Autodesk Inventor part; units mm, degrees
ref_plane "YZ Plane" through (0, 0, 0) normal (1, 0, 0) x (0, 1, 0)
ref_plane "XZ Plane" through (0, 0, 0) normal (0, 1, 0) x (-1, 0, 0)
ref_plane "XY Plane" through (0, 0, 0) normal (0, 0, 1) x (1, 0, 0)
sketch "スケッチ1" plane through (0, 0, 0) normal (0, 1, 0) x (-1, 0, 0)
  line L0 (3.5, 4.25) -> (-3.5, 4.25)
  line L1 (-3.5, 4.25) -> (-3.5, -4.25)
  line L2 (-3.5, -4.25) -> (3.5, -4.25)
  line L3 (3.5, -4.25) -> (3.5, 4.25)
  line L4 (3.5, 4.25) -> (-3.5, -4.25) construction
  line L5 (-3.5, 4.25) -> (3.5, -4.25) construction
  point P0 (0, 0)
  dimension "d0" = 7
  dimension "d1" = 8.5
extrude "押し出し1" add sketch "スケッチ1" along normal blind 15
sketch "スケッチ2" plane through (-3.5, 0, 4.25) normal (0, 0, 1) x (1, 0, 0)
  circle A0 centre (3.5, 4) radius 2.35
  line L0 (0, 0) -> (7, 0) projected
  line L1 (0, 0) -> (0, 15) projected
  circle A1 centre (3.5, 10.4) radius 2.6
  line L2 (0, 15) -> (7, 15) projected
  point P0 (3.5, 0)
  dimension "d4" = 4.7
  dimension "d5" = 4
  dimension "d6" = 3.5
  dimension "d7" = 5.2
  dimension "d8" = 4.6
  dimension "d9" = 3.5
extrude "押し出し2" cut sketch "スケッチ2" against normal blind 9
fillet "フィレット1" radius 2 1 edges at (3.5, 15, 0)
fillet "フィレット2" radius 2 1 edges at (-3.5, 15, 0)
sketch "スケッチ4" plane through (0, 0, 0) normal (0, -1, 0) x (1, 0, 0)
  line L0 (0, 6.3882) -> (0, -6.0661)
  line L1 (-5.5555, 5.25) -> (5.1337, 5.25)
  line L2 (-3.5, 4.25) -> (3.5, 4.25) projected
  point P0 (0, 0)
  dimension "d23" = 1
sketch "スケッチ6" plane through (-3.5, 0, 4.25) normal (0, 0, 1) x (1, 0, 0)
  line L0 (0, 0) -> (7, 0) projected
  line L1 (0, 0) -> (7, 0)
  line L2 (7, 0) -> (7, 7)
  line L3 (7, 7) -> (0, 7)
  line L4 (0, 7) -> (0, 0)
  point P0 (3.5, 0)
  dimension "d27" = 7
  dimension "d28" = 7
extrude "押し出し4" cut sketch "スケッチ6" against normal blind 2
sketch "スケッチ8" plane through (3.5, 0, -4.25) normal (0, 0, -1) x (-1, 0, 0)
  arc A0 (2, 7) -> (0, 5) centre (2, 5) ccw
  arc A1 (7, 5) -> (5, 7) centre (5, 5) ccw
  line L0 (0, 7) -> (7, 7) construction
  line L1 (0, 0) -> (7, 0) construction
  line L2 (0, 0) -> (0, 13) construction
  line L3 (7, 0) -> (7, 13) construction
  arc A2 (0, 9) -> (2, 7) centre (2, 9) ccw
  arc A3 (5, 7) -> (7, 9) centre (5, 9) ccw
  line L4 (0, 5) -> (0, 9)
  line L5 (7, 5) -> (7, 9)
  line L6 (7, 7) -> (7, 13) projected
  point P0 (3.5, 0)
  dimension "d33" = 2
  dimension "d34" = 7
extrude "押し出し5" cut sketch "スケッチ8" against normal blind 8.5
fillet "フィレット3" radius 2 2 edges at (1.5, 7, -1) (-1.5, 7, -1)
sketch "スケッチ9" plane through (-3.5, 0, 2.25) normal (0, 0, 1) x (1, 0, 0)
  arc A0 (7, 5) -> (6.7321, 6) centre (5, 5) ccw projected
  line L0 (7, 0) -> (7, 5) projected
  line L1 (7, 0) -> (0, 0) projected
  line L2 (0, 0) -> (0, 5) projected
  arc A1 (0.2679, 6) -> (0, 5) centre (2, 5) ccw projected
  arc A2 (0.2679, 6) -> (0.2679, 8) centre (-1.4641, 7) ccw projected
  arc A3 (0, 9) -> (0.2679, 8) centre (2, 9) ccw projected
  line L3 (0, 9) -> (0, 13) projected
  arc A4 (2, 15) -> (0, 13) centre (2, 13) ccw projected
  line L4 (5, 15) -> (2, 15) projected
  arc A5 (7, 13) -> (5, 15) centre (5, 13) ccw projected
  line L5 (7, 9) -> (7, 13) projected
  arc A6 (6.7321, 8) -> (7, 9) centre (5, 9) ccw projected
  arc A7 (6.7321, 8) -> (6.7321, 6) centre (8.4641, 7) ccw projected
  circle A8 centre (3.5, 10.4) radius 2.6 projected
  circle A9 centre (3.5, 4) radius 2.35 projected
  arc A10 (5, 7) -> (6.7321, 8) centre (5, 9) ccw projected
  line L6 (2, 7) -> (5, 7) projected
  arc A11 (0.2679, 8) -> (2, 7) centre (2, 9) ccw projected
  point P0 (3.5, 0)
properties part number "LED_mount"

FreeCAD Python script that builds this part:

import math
import FreeCAD as App
import Part
import Sketcher

V = App.Vector


def edges_at(feature, points):
    """Names of the edges that pass closest to the given points."""
    edges = feature.Shape.Edges
    near = lambda p: min(range(len(edges)), key=lambda i: edges[i].distToShape(Part.Vertex(*p))[0])
    return sorted({f"Edge{near(p) + 1}" for p in points})


def add_polygon(sketch, points):
    """Adds a closed chain of lines whose ends are joined by coincident constraints."""
    first, n = sketch.GeometryCount, len(points)
    for a, b in zip(points, points[1:] + points[:1]):
        sketch.addGeometry(Part.LineSegment(App.Vector(*a, 0), App.Vector(*b, 0)), False)
    for i in range(n):
        sketch.addConstraint(Sketcher.Constraint("Coincident", first + i, 2, first + (i + 1) % n, 1))

doc = App.newDocument("Part")
body = doc.addObject("PartDesign::Body", "Body")

# Sketch on XZ plane
sketch1 = doc.addObject("Sketcher::SketchObject", "Sketch")
body.addObject(sketch1)
sketch1.AttachmentSupport = (doc.XZ_Plane, [""])
sketch1.MapMode = "FlatFace"
add_polygon(sketch1, [(-3.5, -4.25), (-3.5, 4.25), (3.5, 4.25), (3.5, -4.25)])  # lines 0-3
sketch1.addConstraint([
    Sketcher.Constraint("Vertical", 0),
    Sketcher.Constraint("Horizontal", 1),
    Sketcher.Constraint("Vertical", 2),
    Sketcher.Constraint("Horizontal", 3),
    Sketcher.Constraint("Symmetric", 0, 2, 2, 2, -1, 1),
    Sketcher.Constraint("DistanceX", 1, 1, 1, 2, 7.0),
    Sketcher.Constraint("DistanceY", 0, 1, 0, 2, 8.5),
])
pad1 = doc.addObject("PartDesign::Pad", "Pad")
body.addObject(pad1)
pad1.Profile = sketch1
pad1.Length = 15
pad1.Reversed = True

# Sketch on XY plane
sketch2 = doc.addObject("Sketcher::SketchObject", "Sketch001")
body.addObject(sketch2)
sketch2.AttachmentSupport = (doc.XY_Plane, [""])
sketch2.MapMode = "FlatFace"
sketch2.AttachmentOffset = App.Placement(V(0, 0, 4.25), App.Rotation())
sketch2.addGeometry([
    Part.Circle(V(0, 4, 0), V(0, 0, 1), 2.35),
    Part.Circle(V(0, 10.4, 0), V(0, 0, 1), 2.6),
], False)
sketch2.addConstraint([
    Sketcher.Constraint("PointOnObject", 0, 3, -2),
    Sketcher.Constraint("PointOnObject", 1, 3, -2),
    Sketcher.Constraint("Diameter", 0, 4.7),
    Sketcher.Constraint("Diameter", 1, 5.2),
    Sketcher.Constraint("DistanceY", -1, 1, 0, 3, 4.0),
    Sketcher.Constraint("DistanceY", -1, 1, 1, 3, 10.4),
])
pocket1 = doc.addObject("PartDesign::Pocket", "Pocket")
body.addObject(pocket1)
pocket1.Profile = sketch2
pocket1.Length = 9
doc.recompute()

fillet = doc.addObject("PartDesign::Fillet", "Fillet")
body.addObject(fillet)
fillet.Base = (pocket1, edges_at(pocket1, [(3.5, 15, 0)]))
fillet.Radius = 2
doc.recompute()

fillet2 = doc.addObject("PartDesign::Fillet", "Fillet001")
body.addObject(fillet2)
fillet2.Base = (fillet, edges_at(fillet, [(-3.5, 15, 0)]))
fillet2.Radius = 2

# Sketch on XY plane
sketch3 = doc.addObject("Sketcher::SketchObject", "Sketch002")
body.addObject(sketch3)
sketch3.AttachmentSupport = (doc.XY_Plane, [""])
sketch3.MapMode = "FlatFace"
sketch3.AttachmentOffset = App.Placement(V(0, 0, 4.25), App.Rotation())
add_polygon(sketch3, [(-3.5, 7), (-3.5, 0), (3.5, 0), (3.5, 7)])  # lines 0-3
sketch3.addConstraint([
    Sketcher.Constraint("Vertical", 0),
    Sketcher.Constraint("Horizontal", 1),
    Sketcher.Constraint("Vertical", 2),
    Sketcher.Constraint("Horizontal", 3),
    Sketcher.Constraint("Symmetric", 0, 2, 1, 2, -1, 1),
    Sketcher.Constraint("Equal", 3, 0),
    Sketcher.Constraint("DistanceX", 1, 1, 1, 2, 7.0),
])
pocket2 = doc.addObject("PartDesign::Pocket", "Pocket001")
body.addObject(pocket2)
pocket2.Profile = sketch3
pocket2.Length = 2

# Sketch on XY plane
sketch4 = doc.addObject("Sketcher::SketchObject", "Sketch003")
body.addObject(sketch4)
sketch4.AttachmentSupport = (doc.XY_Plane, [""])
sketch4.MapMode = "FlatFace"
sketch4.AttachmentOffset = App.Placement(V(0, 0, -4.25), App.Rotation())
sketch4.addGeometry([
    Part.ArcOfCircle(Part.Circle(V(1.5, 5, 0), V(0, 0, 1), 2), math.radians(0), math.radians(90)),  # 0
    Part.ArcOfCircle(Part.Circle(V(1.5, 9, 0), V(0, 0, 1), 2), math.radians(-90), math.radians(0)),  # 1
    Part.LineSegment(V(3.5, 9, 0), V(3.5, 5, 0)),  # 2
    Part.ArcOfCircle(Part.Circle(V(-1.5, 5, 0), V(0, 0, 1), 2), math.radians(90), math.radians(180)),  # 3
    Part.LineSegment(V(-3.5, 5, 0), V(-3.5, 9, 0)),  # 4
    Part.ArcOfCircle(Part.Circle(V(-1.5, 9, 0), V(0, 0, 1), 2), math.radians(180), math.radians(270)),  # 5
], False)
sketch4.addConstraint([
    Sketcher.Constraint("Tangent", 0, 2, 1, 1),
    Sketcher.Constraint("Tangent", 1, 2, 2, 1),
    Sketcher.Constraint("Tangent", 2, 2, 0, 1),
    Sketcher.Constraint("Tangent", 3, 2, 4, 1),
    Sketcher.Constraint("Tangent", 4, 2, 5, 1),
    Sketcher.Constraint("Tangent", 5, 2, 3, 1),
    Sketcher.Constraint("Vertical", 2),
    Sketcher.Constraint("Vertical", 4),
    Sketcher.Constraint("Equal", 0, 1),
    Sketcher.Constraint("Equal", 1, 3),
    Sketcher.Constraint("Equal", 3, 5),
    Sketcher.Constraint("Symmetric", 0, 3, 3, 3, -2),
    Sketcher.Constraint("Radius", 0, 2.0),
    Sketcher.Constraint("DistanceY", -1, 1, 0, 2, 7.0),
    Sketcher.Constraint("DistanceX", 3, 3, 0, 3, 3.0),
])
pocket3 = doc.addObject("PartDesign::Pocket", "Pocket002")
body.addObject(pocket3)
pocket3.Profile = sketch4
pocket3.Length = 8.5
pocket3.Reversed = True
doc.recompute()

fillet3 = doc.addObject("PartDesign::Fillet", "Fillet002")
body.addObject(fillet3)
fillet3.Base = (pocket3, edges_at(pocket3, [(1.5, 7, -1), (-1.5, 7, -1)]))
fillet3.Radius = 2

doc.recompute()
